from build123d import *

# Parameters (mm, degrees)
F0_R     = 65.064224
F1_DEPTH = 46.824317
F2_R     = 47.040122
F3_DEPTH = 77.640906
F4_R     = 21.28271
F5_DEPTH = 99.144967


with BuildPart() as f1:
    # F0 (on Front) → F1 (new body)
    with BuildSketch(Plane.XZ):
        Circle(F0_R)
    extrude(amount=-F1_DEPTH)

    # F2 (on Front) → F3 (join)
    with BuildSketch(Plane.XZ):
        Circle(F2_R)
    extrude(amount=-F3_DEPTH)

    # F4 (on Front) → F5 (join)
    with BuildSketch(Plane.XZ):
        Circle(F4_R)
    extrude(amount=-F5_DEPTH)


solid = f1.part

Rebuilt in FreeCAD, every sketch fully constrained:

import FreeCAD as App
import Part
import Sketcher

doc = App.newDocument("Part")
params = doc.addObject("Spreadsheet::Sheet", "Params")
for row, (alias, value) in enumerate([
    ("pad1_length", "46.824317 mm"),
    ("pad2_length", "77.640906 mm"),
    ("pad3_length", "99.144967 mm"),
], start=1):
    params.set(f"A{row}", alias)
    params.set(f"B{row}", "=" + value)
    params.setAlias(f"B{row}", alias)

body = doc.addObject("PartDesign::Body", "Body")

sketch1 = body.newObject("Sketcher::SketchObject", "Sketch")
sketch1.AttachmentSupport = (doc.getObject("XZ_Plane"), [""])
sketch1.MapMode = "FlatFace"
sketch1.addGeometry(Part.Circle(App.Vector(0, 0, 0), App.Vector(0, 0, 1), 65), False)
sketch1.addConstraint(Sketcher.Constraint("Coincident", 0, 3, -1, 1))
sketch1.addConstraint(Sketcher.Constraint("Diameter", 0, 130.128448))
pad1 = body.newObject("PartDesign::Pad", "Pad")
pad1.Profile = sketch1
pad1.setExpression("Length", "Params.pad1_length")
pad1.Reversed = True

sketch2 = body.newObject("Sketcher::SketchObject", "Sketch001")
sketch2.AttachmentSupport = (doc.getObject("XZ_Plane"), [""])
sketch2.MapMode = "FlatFace"
sketch2.addGeometry(Part.Circle(App.Vector(0, 0, 0), App.Vector(0, 0, 1), 47), False)
sketch2.addConstraint(Sketcher.Constraint("Coincident", 0, 3, -1, 1))
sketch2.addConstraint(Sketcher.Constraint("Diameter", 0, 94.080244))
pad2 = body.newObject("PartDesign::Pad", "Pad001")
pad2.Profile = sketch2
pad2.setExpression("Length", "Params.pad2_length")
pad2.Reversed = True

sketch3 = body.newObject("Sketcher::SketchObject", "Sketch002")
sketch3.AttachmentSupport = (doc.getObject("XZ_Plane"), [""])
sketch3.MapMode = "FlatFace"
sketch3.addGeometry(Part.Circle(App.Vector(0, 0, 0), App.Vector(0, 0, 1), 21), False)
sketch3.addConstraint(Sketcher.Constraint("Coincident", 0, 3, -1, 1))
sketch3.addConstraint(Sketcher.Constraint("Diameter", 0, 42.56542))
pad3 = body.newObject("PartDesign::Pad", "Pad002")
pad3.Profile = sketch3
pad3.setExpression("Length", "Params.pad3_length")
pad3.Reversed = True

doc.recompute()
